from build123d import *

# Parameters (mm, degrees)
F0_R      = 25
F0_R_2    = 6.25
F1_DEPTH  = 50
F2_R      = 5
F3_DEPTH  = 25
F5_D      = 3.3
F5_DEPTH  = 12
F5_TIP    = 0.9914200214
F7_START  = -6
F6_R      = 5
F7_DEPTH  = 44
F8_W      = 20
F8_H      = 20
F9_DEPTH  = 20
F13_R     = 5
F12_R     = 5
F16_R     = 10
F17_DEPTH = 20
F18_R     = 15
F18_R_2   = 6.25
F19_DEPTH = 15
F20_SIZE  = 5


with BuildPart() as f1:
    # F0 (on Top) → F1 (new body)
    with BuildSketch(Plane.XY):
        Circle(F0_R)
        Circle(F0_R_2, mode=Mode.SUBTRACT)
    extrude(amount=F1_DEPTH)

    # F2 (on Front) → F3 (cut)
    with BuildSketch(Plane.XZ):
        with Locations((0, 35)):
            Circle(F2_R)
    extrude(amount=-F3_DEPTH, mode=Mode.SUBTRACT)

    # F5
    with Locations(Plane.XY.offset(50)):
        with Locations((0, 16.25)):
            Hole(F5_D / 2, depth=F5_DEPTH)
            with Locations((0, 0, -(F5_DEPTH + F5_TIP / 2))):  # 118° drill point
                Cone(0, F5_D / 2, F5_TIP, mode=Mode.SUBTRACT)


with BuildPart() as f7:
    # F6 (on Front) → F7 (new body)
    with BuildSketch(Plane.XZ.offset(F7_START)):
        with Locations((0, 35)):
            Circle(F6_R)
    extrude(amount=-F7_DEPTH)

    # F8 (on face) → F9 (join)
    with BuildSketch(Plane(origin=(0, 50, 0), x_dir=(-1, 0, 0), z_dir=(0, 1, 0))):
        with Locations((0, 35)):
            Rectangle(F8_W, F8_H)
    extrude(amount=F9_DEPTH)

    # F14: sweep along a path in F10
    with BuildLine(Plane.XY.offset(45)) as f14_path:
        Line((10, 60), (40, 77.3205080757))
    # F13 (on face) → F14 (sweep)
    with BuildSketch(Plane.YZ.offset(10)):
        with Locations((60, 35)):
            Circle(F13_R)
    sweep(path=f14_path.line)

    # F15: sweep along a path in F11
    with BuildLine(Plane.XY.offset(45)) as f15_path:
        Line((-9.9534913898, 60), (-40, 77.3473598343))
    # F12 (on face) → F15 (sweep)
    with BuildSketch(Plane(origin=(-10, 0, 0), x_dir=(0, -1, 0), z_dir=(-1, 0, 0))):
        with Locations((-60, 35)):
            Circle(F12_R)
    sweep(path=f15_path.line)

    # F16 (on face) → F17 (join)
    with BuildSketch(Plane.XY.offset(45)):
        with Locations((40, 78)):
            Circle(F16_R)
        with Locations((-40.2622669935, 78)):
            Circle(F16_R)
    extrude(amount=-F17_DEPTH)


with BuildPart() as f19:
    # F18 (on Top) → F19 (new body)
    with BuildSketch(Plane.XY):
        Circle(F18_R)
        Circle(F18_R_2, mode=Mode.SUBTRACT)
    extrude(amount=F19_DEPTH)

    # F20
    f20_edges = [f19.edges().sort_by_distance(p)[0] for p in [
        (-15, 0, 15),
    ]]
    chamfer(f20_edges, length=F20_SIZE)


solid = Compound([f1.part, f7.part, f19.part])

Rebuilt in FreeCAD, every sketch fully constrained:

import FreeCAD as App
import Part
import Sketcher
from FreeCAD import Vector


def edges_at(feature, points):
    """Names of the edges that pass closest to the given points."""
    edges = feature.Shape.Edges
    near = lambda p: min(range(len(edges)), key=lambda i: edges[i].distToShape(Part.Vertex(*p))[0])
    return sorted({f"Edge{near(p) + 1}" for p in points})


def add_polygon(sketch, points):
    """Adds a closed chain of lines whose ends are joined by coincident constraints."""
    first, n = sketch.GeometryCount, len(points)
    for a, b in zip(points, points[1:] + points[:1]):
        sketch.addGeometry(Part.LineSegment(App.Vector(*a, 0), App.Vector(*b, 0)), False)
    for i in range(n):
        sketch.addConstraint(Sketcher.Constraint("Coincident", first + i, 2, first + (i + 1) % n, 1))

doc = App.newDocument("Part")
params = doc.addObject("Spreadsheet::Sheet", "Params")
for row, (alias, value) in enumerate([
    ("sketch1_diameter", "50 mm"),
    ("sketch1_diameter2", "12.5 mm"),
    ("pad1_length", "50 mm"),
    ("sketch2_diameter", "10 mm"),
    ("pocket1_length", "25 mm"),
    ("sketch3_diameter", "3.3 mm"),
    ("hole_diameter", "3.3 mm"),
    ("hole_depth", "12 mm"),
    ("sketch4_diameter", "10 mm"),
    ("pad2_length", "44 mm"),
    ("sketch5_width", "20 mm"),
    ("pad3_length", "20 mm"),
    ("sketch6_diameter", "10 mm"),
    ("sketch8_diameter", "10 mm"),
    ("sketch10_diameter", "20 mm"),
    ("pad4_length", "20 mm"),
    ("sketch11_diameter", "30 mm"),
    ("sketch11_diameter2", "12.5 mm"),
    ("pad5_length", "15 mm"),
    ("chamfer_size", "5 mm"),
], start=1):
    params.set(f"A{row}", alias)
    params.set(f"B{row}", "=" + value)
    params.setAlias(f"B{row}", alias)

body = doc.addObject("PartDesign::Body", "Body")

sketch1 = body.newObject("Sketcher::SketchObject", "Sketch")
sketch1.AttachmentSupport = (doc.getObject("XY_Plane"), [""])
sketch1.MapMode = "FlatFace"
sketch1.addGeometry([
    Part.Circle(Vector(0, 0, 0), Vector(0, 0, 1), 25),
    Part.Circle(Vector(0, 0, 0), Vector(0, 0, 1), 6.25),
], False)
sketch1.addConstraint([
    Sketcher.Constraint("Coincident", 0, 3, -1, 1),
    Sketcher.Constraint("Coincident", 1, 3, -1, 1),
    Sketcher.Constraint("Diameter", 0, 50.0),
    Sketcher.Constraint("Diameter", 1, 12.5),
])
sketch1.setExpression("Constraints[2]", "Params.sketch1_diameter")
sketch1.setExpression("Constraints[3]", "Params.sketch1_diameter2")
pad1 = body.newObject("PartDesign::Pad", "Pad")
pad1.Profile = sketch1
pad1.setExpression("Length", "Params.pad1_length")

sketch2 = body.newObject("Sketcher::SketchObject", "Sketch001")
sketch2.AttachmentSupport = (doc.getObject("XZ_Plane"), [""])
sketch2.MapMode = "FlatFace"
sketch2.addGeometry(Part.Circle(Vector(0, 35, 0), Vector(0, 0, 1), 5), False)
sketch2.addConstraint([
    Sketcher.Constraint("PointOnObject", 0, 3, -2),
    Sketcher.Constraint("Diameter", 0, 10.0),
    Sketcher.Constraint("DistanceY", -1, 1, 0, 3, 35.0),
])
sketch2.setExpression("Constraints[1]", "Params.sketch2_diameter")
pocket1 = body.newObject("PartDesign::Pocket", "Pocket")
pocket1.Profile = sketch2
pocket1.setExpression("Length", "Params.pocket1_length")

sketch3 = body.newObject("Sketcher::SketchObject", "Sketch002")
sketch3.AttachmentSupport = (doc.getObject("XY_Plane"), [""])
sketch3.MapMode = "FlatFace"
sketch3.AttachmentOffset = App.Placement(Vector(0, 0, 50), App.Rotation())
sketch3.addGeometry(Part.Circle(Vector(0, 16.25, 0), Vector(0, 0, 1), 1.65), False)
sketch3.addConstraint([
    Sketcher.Constraint("PointOnObject", 0, 3, -2),
    Sketcher.Constraint("Diameter", 0, 3.3),
    Sketcher.Constraint("DistanceY", -1, 1, 0, 3, 16.25),
])
sketch3.setExpression("Constraints[1]", "Params.sketch3_diameter")
doc.recompute()
hole = body.newObject("PartDesign::Hole", "Hole")
hole.Profile = sketch3
hole.ThreadType = "None"
hole.setExpression("Diameter", "Params.hole_diameter")
hole.DepthType = "Dimension"
hole.setExpression("Depth", "Params.hole_depth")
hole.DrillPoint = "Angled"
hole.DrillPointAngle = 118
body2 = doc.addObject("PartDesign::Body", "Body001")

sketch4 = body2.newObject("Sketcher::SketchObject", "Sketch003")
sketch4.AttachmentSupport = (doc.getObject("XZ_Plane001"), [""])
sketch4.MapMode = "FlatFace"
sketch4.AttachmentOffset = App.Placement(Vector(0, 0, -6), App.Rotation())
sketch4.addGeometry(Part.Circle(Vector(0, 35, 0), Vector(0, 0, 1), 5), False)
sketch4.addConstraint([
    Sketcher.Constraint("PointOnObject", 0, 3, -2),
    Sketcher.Constraint("Diameter", 0, 10.0),
    Sketcher.Constraint("DistanceY", -1, 1, 0, 3, 35.0),
])
sketch4.setExpression("Constraints[1]", "Params.sketch4_diameter")
pad2 = body2.newObject("PartDesign::Pad", "Pad001")
pad2.Profile = sketch4
pad2.setExpression("Length", "Params.pad2_length")
pad2.Reversed = True

sketch5 = body2.newObject("Sketcher::SketchObject", "Sketch004")
sketch5.AttachmentSupport = (doc.getObject("XZ_Plane001"), [""])
sketch5.MapMode = "FlatFace"
sketch5.AttachmentOffset = App.Placement(Vector(0, 0, -50), App.Rotation())
add_polygon(sketch5, [(10, 45), (10, 25), (-10, 25), (-10, 45)])
sketch5.addConstraint([
    Sketcher.Constraint("Vertical", 0),
    Sketcher.Constraint("Horizontal", 1),
    Sketcher.Constraint("Vertical", 2),
    Sketcher.Constraint("Horizontal", 3),
    Sketcher.Constraint("Equal", 3, 0),
    Sketcher.Constraint("DistanceX", 1, 2, 1, 1, 20.0),
    Sketcher.Constraint("DistanceX", -1, 1, 0, 2, 10.0),
    Sketcher.Constraint("DistanceY", -1, 1, 0, 2, 25.0),
])
sketch5.setExpression("Constraints[9]", "Params.sketch5_width")
pad3 = body2.newObject("PartDesign::Pad", "Pad002")
pad3.Profile = sketch5
pad3.setExpression("Length", "Params.pad3_length")
pad3.Reversed = True

sketch6 = body2.newObject("Sketcher::SketchObject", "Sketch005")
sketch6.AttachmentSupport = (doc.getObject("YZ_Plane001"), [""])
sketch6.MapMode = "FlatFace"
sketch6.AttachmentOffset = App.Placement(Vector(0, 0, 10), App.Rotation())
sketch6.addGeometry(Part.Circle(Vector(60, 35, 0), Vector(0, 0, 1), 5), False)
sketch6.addConstraint([
    Sketcher.Constraint("Diameter", 0, 10.0),
    Sketcher.Constraint("DistanceX", -1, 1, 0, 3, 60.0),
    Sketcher.Constraint("DistanceY", -1, 1, 0, 3, 35.0),
])
sketch6.setExpression("Constraints[0]", "Params.sketch6_diameter")

sketch7 = body2.newObject("Sketcher::SketchObject", "Sketch006")
sketch7.Placement = App.Placement(Vector(-23.480762, 40.669873, 0), App.Rotation(Vector(0.866025404, 0.5, 0), Vector(0, 0, 1), Vector(0.5, -0.866025404, 0), "ZXY"))
sketch7.addGeometry(Part.LineSegment(Vector(38.660254, 45, 0), Vector(73.30127, 45, 0)), False)
sketch7.addConstraint([
    Sketcher.Constraint("Horizontal", 0),
    Sketcher.Constraint("DistanceY", -1, 1, 0, 1, 45.0),
    Sketcher.Constraint("DistanceX", 0, 1, 0, 2, 34.641016),
    Sketcher.Constraint("DistanceX", -1, 1, 0, 2, 73.30127),
])
doc.recompute()

additivepipe = body2.newObject("PartDesign::AdditivePipe", "AdditivePipe")
additivepipe.Profile = sketch6
additivepipe.Spine = (sketch7, ["Edge1"])

sketch8 = body2.newObject("Sketcher::SketchObject", "Sketch007")
sketch8.AttachmentSupport = (doc.getObject("YZ_Plane001"), [""])
sketch8.MapMode = "FlatFace"
sketch8.AttachmentOffset = App.Placement(Vector(0, 0, -10), App.Rotation())
sketch8.addGeometry(Part.Circle(Vector(60, 35, 0), Vector(0, 0, 1), 5), False)
sketch8.addConstraint([
    Sketcher.Constraint("Diameter", 0, 10.0),
    Sketcher.Constraint("DistanceX", -1, 1, 0, 3, 60.0),
    Sketcher.Constraint("DistanceY", -1, 1, 0, 3, 35.0),
])
sketch8.setExpression("Constraints[0]", "Params.sketch8_diameter")

sketch9 = body2.newObject("Sketcher::SketchObject", "Sketch008")
sketch9.Placement = App.Placement(Vector(23.492389, 40.690012, 0), App.Rotation(Vector(-0.866025404, 0.5, 0), Vector(0, 0, 1), Vector(0.5, 0.866025404, 0), "ZXY"))
sketch9.addGeometry(Part.LineSegment(Vector(38.619976, 45, 0), Vector(73.314696, 45, 0)), False)
sketch9.addConstraint([
    Sketcher.Constraint("Horizontal", 0),
    Sketcher.Constraint("DistanceY", -1, 1, 0, 1, 45.0),
    Sketcher.Constraint("DistanceX", 0, 1, 0, 2, 34.69472),
    Sketcher.Constraint("DistanceX", -1, 1, 0, 1, 38.619976),
])
doc.recompute()

additivepipe2 = body2.newObject("PartDesign::AdditivePipe", "AdditivePipe001")
additivepipe2.Profile = sketch8
additivepipe2.Spine = (sketch9, ["Edge1"])

sketch10 = body2.newObject("Sketcher::SketchObject", "Sketch009")
sketch10.AttachmentSupport = (doc.getObject("XY_Plane001"), [""])
sketch10.MapMode = "FlatFace"
sketch10.AttachmentOffset = App.Placement(Vector(0, 0, 45), App.Rotation())
sketch10.addGeometry([
    Part.Circle(Vector(40, 78, 0), Vector(0, 0, 1), 10),
    Part.Circle(Vector(-40.262267, 78, 0), Vector(0, 0, 1), 10),
], False)
sketch10.addConstraint([
    Sketcher.Constraint("Equal", 0, 1),
    Sketcher.Constraint("Horizontal", 0, 3, 1, 3),
    Sketcher.Constraint("Diameter", 0, 20.0),
    Sketcher.Constraint("DistanceX", -1, 1, 0, 3, 40.0),
    Sketcher.Constraint("DistanceY", -1, 1, 0, 3, 78.0),
    Sketcher.Constraint("DistanceX", 1, 3, -1, 1, 40.262267),
])
sketch10.setExpression("Constraints[2]", "Params.sketch10_diameter")
pad4 = body2.newObject("PartDesign::Pad", "Pad003")
pad4.Profile = sketch10
pad4.setExpression("Length", "Params.pad4_length")
pad4.Reversed = True
body3 = doc.addObject("PartDesign::Body", "Body002")

sketch11 = body3.newObject("Sketcher::SketchObject", "Sketch010")
sketch11.AttachmentSupport = (doc.getObject("XY_Plane002"), [""])
sketch11.MapMode = "FlatFace"
sketch11.addGeometry([
    Part.Circle(Vector(0, 0, 0), Vector(0, 0, 1), 15),
    Part.Circle(Vector(0, 0, 0), Vector(0, 0, 1), 6.25),
], False)
sketch11.addConstraint([
    Sketcher.Constraint("Coincident", 0, 3, -1, 1),
    Sketcher.Constraint("Coincident", 1, 3, -1, 1),
    Sketcher.Constraint("Diameter", 0, 30.0),
    Sketcher.Constraint("Diameter", 1, 12.5),
])
sketch11.setExpression("Constraints[2]", "Params.sketch11_diameter")
sketch11.setExpression("Constraints[3]", "Params.sketch11_diameter2")
pad5 = body3.newObject("PartDesign::Pad", "Pad004")
pad5.Profile = sketch11
pad5.setExpression("Length", "Params.pad5_length")
doc.recompute()

chamfer = body3.newObject("PartDesign::Chamfer", "Chamfer")
chamfer.Base = (pad5, edges_at(pad5, [(-15, 0, 15)]))
chamfer.setExpression("Size", "Params.chamfer_size")

doc.recompute()
